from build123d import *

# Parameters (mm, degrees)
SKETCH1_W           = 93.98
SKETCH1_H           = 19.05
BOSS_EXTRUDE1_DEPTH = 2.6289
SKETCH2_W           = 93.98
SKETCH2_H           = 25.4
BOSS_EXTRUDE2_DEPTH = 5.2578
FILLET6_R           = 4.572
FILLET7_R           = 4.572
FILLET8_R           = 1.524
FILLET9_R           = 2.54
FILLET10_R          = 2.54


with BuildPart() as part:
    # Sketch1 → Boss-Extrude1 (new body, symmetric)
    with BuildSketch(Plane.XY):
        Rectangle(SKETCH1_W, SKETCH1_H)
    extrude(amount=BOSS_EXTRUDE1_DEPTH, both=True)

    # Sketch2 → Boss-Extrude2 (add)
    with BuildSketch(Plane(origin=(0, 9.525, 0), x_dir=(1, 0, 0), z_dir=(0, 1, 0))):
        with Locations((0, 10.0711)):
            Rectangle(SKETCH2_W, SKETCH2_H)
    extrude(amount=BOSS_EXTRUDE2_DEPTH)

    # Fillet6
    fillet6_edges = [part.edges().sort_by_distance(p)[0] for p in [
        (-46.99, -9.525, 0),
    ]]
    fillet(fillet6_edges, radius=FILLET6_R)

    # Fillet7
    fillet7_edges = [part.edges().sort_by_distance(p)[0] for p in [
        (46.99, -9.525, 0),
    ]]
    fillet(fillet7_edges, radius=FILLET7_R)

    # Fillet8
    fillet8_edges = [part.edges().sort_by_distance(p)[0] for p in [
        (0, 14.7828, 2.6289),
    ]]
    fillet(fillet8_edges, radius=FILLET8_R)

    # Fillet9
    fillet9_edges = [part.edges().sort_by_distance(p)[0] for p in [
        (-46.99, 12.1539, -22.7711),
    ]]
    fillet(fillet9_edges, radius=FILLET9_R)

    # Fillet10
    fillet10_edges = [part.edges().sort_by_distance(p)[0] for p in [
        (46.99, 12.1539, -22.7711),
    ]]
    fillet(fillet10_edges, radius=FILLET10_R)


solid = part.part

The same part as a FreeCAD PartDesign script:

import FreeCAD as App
import Part
import Sketcher

V = App.Vector
Q = App.Units.Quantity


def edges_at(feature, points):
    """Names of the edges that pass closest to the given points."""
    edges = feature.Shape.Edges
    near = lambda p: min(range(len(edges)), key=lambda i: edges[i].distToShape(Part.Vertex(*p))[0])
    return sorted({f"Edge{near(p) + 1}" for p in points})

doc = App.newDocument("Part")
body = doc.addObject("PartDesign::Body", "Body")

sketch1 = body.newObject("Sketcher::SketchObject", "Sketch")
sketch1.AttachmentSupport = (doc.getObject("XY_Plane"), [""])
sketch1.MapMode = "FlatFace"
sketch1.addGeometry(Part.LineSegment(V(-47, 10, 0), V(-47, -10, 0)), False)
sketch1.addGeometry(Part.LineSegment(V(-47, -10, 0), V(47, -10, 0)), False)
sketch1.addGeometry(Part.LineSegment(V(47, -10, 0), V(47, 10, 0)), False)
sketch1.addGeometry(Part.LineSegment(V(47, 10, 0), V(-47, 10, 0)), False)
sketch1.addConstraint(Sketcher.Constraint("Coincident", 0, 2, 1, 1))
sketch1.addConstraint(Sketcher.Constraint("Coincident", 1, 2, 2, 1))
sketch1.addConstraint(Sketcher.Constraint("Coincident", 2, 2, 3, 1))
sketch1.addConstraint(Sketcher.Constraint("Coincident", 3, 2, 0, 1))
sketch1.addConstraint(Sketcher.Constraint("Vertical", 0))
sketch1.addConstraint(Sketcher.Constraint("Horizontal", 1))
sketch1.addConstraint(Sketcher.Constraint("Vertical", 2))
sketch1.addConstraint(Sketcher.Constraint("Horizontal", 3))
sketch1.addConstraint(Sketcher.Constraint("Symmetric", 0, 2, 2, 2, -1, 1))
sketch1.addConstraint(Sketcher.Constraint("DistanceX", 1, 1, 1, 2, Q("3.7 in")))
sketch1.addConstraint(Sketcher.Constraint("DistanceY", 0, 2, 0, 1, Q("0.75 in")))
pad1 = body.newObject("PartDesign::Pad", "Pad")
pad1.Profile = sketch1
pad1.Length = Q("0.207 in")
pad1.Midplane = True

sketch2 = body.newObject("Sketcher::SketchObject", "Sketch001")
sketch2.AttachmentSupport = (doc.getObject("XZ_Plane"), [""])
sketch2.MapMode = "FlatFace"
sketch2.AttachmentOffset = App.Placement(V(0, 0, -0.375 * 25.4), App.Rotation())
sketch2.addGeometry(Part.LineSegment(V(-47, -23, 0), V(-47, 3, 0)), False)
sketch2.addGeometry(Part.LineSegment(V(-47, 3, 0), V(47, 3, 0)), False)
sketch2.addGeometry(Part.LineSegment(V(47, 3, 0), V(47, -23, 0)), False)
sketch2.addGeometry(Part.LineSegment(V(47, -23, 0), V(-47, -23, 0)), False)
sketch2.addConstraint(Sketcher.Constraint("Coincident", 0, 2, 1, 1))
sketch2.addConstraint(Sketcher.Constraint("Coincident", 1, 2, 2, 1))
sketch2.addConstraint(Sketcher.Constraint("Coincident", 2, 2, 3, 1))
sketch2.addConstraint(Sketcher.Constraint("Coincident", 3, 2, 0, 1))
sketch2.addConstraint(Sketcher.Constraint("Vertical", 0))
sketch2.addConstraint(Sketcher.Constraint("Horizontal", 1))
sketch2.addConstraint(Sketcher.Constraint("Vertical", 2))
sketch2.addConstraint(Sketcher.Constraint("Horizontal", 3))
sketch2.addConstraint(Sketcher.Constraint("DistanceY", 0, 1, 0, 2, Q("1 in")))
sketch2.addConstraint(Sketcher.Constraint("DistanceX", 1, 1, 1, 2, Q("3.7 in")))
sketch2.addConstraint(Sketcher.Constraint("DistanceX", 0, 2, -1, 1, Q("1.85 in")))
sketch2.addConstraint(Sketcher.Constraint("DistanceY", -1, 1, 0, 2, Q("0.1035 in")))
pad2 = body.newObject("PartDesign::Pad", "Pad001")
pad2.Profile = sketch2
pad2.Length = Q("0.207 in")
pad2.Reversed = True
doc.recompute()

fillet = body.newObject("PartDesign::Fillet", "Fillet")
fillet.Base = (pad2, edges_at(pad2, [(-46.99, -9.525, 0)]))
fillet.Radius = Q("0.18 in")
doc.recompute()

fillet2 = body.newObject("PartDesign::Fillet", "Fillet001")
fillet2.Base = (fillet, edges_at(fillet, [(46.99, -9.525, 0)]))
fillet2.Radius = Q("0.18 in")
doc.recompute()

fillet3 = body.newObject("PartDesign::Fillet", "Fillet002")
fillet3.Base = (fillet2, edges_at(fillet2, [(0, 14.783, 2.629)]))
fillet3.Radius = Q("0.06 in")
doc.recompute()

fillet4 = body.newObject("PartDesign::Fillet", "Fillet003")
fillet4.Base = (fillet3, edges_at(fillet3, [(-46.99, 12.154, -22.771)]))
fillet4.Radius = Q("0.1 in")
doc.recompute()

fillet5 = body.newObject("PartDesign::Fillet", "Fillet004")
fillet5.Base = (fillet4, edges_at(fillet4, [(46.99, 12.154, -22.771)]))
fillet5.Radius = Q("0.1 in")

doc.recompute()
